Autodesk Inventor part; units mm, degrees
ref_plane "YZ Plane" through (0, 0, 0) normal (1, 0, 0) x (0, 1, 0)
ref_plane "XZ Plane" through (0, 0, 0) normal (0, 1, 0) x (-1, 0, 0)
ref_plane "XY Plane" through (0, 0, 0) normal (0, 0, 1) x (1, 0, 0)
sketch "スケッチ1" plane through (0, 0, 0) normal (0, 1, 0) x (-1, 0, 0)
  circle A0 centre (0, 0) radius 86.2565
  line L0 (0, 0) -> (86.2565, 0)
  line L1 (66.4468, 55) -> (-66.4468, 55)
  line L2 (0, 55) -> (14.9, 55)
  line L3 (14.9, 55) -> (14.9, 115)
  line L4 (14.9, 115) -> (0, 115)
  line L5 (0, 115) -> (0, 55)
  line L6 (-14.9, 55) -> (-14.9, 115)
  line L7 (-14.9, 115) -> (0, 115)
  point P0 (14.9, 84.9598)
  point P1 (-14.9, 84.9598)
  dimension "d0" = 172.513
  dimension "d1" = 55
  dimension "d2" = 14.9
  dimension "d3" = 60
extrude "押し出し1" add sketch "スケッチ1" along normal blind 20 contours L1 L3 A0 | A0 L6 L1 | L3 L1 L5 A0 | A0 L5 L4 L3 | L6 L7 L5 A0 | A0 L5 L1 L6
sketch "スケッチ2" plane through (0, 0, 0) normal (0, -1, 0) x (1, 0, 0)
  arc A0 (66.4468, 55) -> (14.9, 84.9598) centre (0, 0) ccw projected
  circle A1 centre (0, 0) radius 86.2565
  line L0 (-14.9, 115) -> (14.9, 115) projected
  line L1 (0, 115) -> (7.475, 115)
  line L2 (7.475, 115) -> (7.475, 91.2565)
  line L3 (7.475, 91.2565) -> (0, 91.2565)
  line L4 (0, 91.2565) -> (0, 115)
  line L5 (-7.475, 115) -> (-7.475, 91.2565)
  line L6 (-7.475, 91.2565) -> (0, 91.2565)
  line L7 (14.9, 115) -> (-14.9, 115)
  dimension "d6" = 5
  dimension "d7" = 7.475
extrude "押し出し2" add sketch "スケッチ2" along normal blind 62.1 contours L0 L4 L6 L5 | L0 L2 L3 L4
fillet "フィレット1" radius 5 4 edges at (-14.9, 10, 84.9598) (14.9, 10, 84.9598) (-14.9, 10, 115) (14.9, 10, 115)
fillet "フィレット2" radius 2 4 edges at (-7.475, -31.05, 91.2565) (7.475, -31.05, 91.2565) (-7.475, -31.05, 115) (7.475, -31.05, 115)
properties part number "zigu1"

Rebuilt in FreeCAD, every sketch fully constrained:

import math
import FreeCAD as App
import Part
import Sketcher

V = App.Vector


def edges_at(feature, points):
    """Names of the edges that pass closest to the given points."""
    edges = feature.Shape.Edges
    near = lambda p: min(range(len(edges)), key=lambda i: edges[i].distToShape(Part.Vertex(*p))[0])
    return sorted({f"Edge{near(p) + 1}" for p in points})


def add_polygon(sketch, points):
    """Adds a closed chain of lines whose ends are joined by coincident constraints."""
    first, n = sketch.GeometryCount, len(points)
    for a, b in zip(points, points[1:] + points[:1]):
        sketch.addGeometry(Part.LineSegment(App.Vector(*a, 0), App.Vector(*b, 0)), False)
    for i in range(n):
        sketch.addConstraint(Sketcher.Constraint("Coincident", first + i, 2, first + (i + 1) % n, 1))

doc = App.newDocument("Part")
body = doc.addObject("PartDesign::Body", "Body")

# Sketch on XZ plane
sketch1 = body.newObject("Sketcher::SketchObject", "Sketch")
sketch1.AttachmentSupport = (doc.getObject("XZ_Plane"), [""])
sketch1.MapMode = "FlatFace"
sketch1.addGeometry([
    Part.ArcOfCircle(Part.Circle(V(0, 0, 0), V(0, 0, 1), 86), math.radians(100), math.radians(140)),  # 0
    Part.LineSegment(V(-15, 85, 0), V(-15, 115, 0)),  # 1
    Part.LineSegment(V(-15, 115, 0), V(15, 115, 0)),  # 2
    Part.LineSegment(V(15, 115, 0), V(15, 85, 0)),  # 3
    Part.ArcOfCircle(Part.Circle(V(0, 0, 0), V(0, 0, 1), 86), math.radians(40), math.radians(80)),  # 4
    Part.LineSegment(V(66, 55, 0), V(-66, 55, 0)),  # 5
], False)
sketch1.addConstraint([
    Sketcher.Constraint("Coincident", 0, 1, 1, 1),
    Sketcher.Constraint("Coincident", 1, 2, 2, 1),
    Sketcher.Constraint("Coincident", 2, 2, 3, 1),
    Sketcher.Constraint("Coincident", 3, 2, 4, 2),
    Sketcher.Constraint("Coincident", 4, 1, 5, 1),
    Sketcher.Constraint("Coincident", 5, 2, 0, 2),
    Sketcher.Constraint("Vertical", 1),
    Sketcher.Constraint("Horizontal", 2),
    Sketcher.Constraint("Vertical", 3),
    Sketcher.Constraint("Horizontal", 5),
    Sketcher.Constraint("Coincident", 0, 3, -1, 1),
    Sketcher.Constraint("Coincident", 4, 3, -1, 1),
    Sketcher.Constraint("Equal", 0, 4),
    Sketcher.Constraint("Horizontal", 0, 1, 3, 2),
    Sketcher.Constraint("DistanceY", -1, 1, 4, 1, 55.0),
    Sketcher.Constraint("DistanceY", 4, 1, 2, 2, 60.0),
    Sketcher.Constraint("DistanceX", 0, 1, -1, 1, 14.9),
    Sketcher.Constraint("Radius", 0, 86.2565),
])
pad1 = body.newObject("PartDesign::Pad", "Pad")
pad1.Profile = sketch1
pad1.Length = 20
pad1.Reversed = True

# Sketch on XZ plane
sketch2 = body.newObject("Sketcher::SketchObject", "Sketch001")
sketch2.AttachmentSupport = (doc.getObject("XZ_Plane"), [""])
sketch2.MapMode = "FlatFace"
add_polygon(sketch2, [(-7, 115), (-7, 91), (7, 91), (7, 115)])  # lines 0-3
sketch2.addConstraint([
    Sketcher.Constraint("Vertical", 0),
    Sketcher.Constraint("Horizontal", 1),
    Sketcher.Constraint("Vertical", 2),
    Sketcher.Constraint("Horizontal", 3),
    Sketcher.Constraint("DistanceX", 0, 2, -1, 1, 7.475),
    Sketcher.Constraint("DistanceX", -1, 1, 1, 2, 7.475),
    Sketcher.Constraint("DistanceY", -1, 1, 2, 2, 115.0),
    Sketcher.Constraint("DistanceY", 0, 2, 0, 1, 23.7435),
])
pad2 = body.newObject("PartDesign::Pad", "Pad001")
pad2.Profile = sketch2
pad2.Length = 62.1
doc.recompute()

fillet = body.newObject("PartDesign::Fillet", "Fillet")
fillet.Base = (pad2, edges_at(pad2, [
    (-14.9, 10, 84.96),
    (14.9, 10, 84.96),
    (-14.9, 10, 115),
    (14.9, 10, 115),
]))
fillet.Radius = 5
doc.recompute()

fillet2 = body.newObject("PartDesign::Fillet", "Fillet001")
fillet2.Base = (fillet, edges_at(fillet, [
    (-7.475, -31.05, 91.257),
    (7.475, -31.05, 91.257),
    (-7.475, -31.05, 115),
    (7.475, -31.05, 115),
]))
fillet2.Radius = 2

doc.recompute()
